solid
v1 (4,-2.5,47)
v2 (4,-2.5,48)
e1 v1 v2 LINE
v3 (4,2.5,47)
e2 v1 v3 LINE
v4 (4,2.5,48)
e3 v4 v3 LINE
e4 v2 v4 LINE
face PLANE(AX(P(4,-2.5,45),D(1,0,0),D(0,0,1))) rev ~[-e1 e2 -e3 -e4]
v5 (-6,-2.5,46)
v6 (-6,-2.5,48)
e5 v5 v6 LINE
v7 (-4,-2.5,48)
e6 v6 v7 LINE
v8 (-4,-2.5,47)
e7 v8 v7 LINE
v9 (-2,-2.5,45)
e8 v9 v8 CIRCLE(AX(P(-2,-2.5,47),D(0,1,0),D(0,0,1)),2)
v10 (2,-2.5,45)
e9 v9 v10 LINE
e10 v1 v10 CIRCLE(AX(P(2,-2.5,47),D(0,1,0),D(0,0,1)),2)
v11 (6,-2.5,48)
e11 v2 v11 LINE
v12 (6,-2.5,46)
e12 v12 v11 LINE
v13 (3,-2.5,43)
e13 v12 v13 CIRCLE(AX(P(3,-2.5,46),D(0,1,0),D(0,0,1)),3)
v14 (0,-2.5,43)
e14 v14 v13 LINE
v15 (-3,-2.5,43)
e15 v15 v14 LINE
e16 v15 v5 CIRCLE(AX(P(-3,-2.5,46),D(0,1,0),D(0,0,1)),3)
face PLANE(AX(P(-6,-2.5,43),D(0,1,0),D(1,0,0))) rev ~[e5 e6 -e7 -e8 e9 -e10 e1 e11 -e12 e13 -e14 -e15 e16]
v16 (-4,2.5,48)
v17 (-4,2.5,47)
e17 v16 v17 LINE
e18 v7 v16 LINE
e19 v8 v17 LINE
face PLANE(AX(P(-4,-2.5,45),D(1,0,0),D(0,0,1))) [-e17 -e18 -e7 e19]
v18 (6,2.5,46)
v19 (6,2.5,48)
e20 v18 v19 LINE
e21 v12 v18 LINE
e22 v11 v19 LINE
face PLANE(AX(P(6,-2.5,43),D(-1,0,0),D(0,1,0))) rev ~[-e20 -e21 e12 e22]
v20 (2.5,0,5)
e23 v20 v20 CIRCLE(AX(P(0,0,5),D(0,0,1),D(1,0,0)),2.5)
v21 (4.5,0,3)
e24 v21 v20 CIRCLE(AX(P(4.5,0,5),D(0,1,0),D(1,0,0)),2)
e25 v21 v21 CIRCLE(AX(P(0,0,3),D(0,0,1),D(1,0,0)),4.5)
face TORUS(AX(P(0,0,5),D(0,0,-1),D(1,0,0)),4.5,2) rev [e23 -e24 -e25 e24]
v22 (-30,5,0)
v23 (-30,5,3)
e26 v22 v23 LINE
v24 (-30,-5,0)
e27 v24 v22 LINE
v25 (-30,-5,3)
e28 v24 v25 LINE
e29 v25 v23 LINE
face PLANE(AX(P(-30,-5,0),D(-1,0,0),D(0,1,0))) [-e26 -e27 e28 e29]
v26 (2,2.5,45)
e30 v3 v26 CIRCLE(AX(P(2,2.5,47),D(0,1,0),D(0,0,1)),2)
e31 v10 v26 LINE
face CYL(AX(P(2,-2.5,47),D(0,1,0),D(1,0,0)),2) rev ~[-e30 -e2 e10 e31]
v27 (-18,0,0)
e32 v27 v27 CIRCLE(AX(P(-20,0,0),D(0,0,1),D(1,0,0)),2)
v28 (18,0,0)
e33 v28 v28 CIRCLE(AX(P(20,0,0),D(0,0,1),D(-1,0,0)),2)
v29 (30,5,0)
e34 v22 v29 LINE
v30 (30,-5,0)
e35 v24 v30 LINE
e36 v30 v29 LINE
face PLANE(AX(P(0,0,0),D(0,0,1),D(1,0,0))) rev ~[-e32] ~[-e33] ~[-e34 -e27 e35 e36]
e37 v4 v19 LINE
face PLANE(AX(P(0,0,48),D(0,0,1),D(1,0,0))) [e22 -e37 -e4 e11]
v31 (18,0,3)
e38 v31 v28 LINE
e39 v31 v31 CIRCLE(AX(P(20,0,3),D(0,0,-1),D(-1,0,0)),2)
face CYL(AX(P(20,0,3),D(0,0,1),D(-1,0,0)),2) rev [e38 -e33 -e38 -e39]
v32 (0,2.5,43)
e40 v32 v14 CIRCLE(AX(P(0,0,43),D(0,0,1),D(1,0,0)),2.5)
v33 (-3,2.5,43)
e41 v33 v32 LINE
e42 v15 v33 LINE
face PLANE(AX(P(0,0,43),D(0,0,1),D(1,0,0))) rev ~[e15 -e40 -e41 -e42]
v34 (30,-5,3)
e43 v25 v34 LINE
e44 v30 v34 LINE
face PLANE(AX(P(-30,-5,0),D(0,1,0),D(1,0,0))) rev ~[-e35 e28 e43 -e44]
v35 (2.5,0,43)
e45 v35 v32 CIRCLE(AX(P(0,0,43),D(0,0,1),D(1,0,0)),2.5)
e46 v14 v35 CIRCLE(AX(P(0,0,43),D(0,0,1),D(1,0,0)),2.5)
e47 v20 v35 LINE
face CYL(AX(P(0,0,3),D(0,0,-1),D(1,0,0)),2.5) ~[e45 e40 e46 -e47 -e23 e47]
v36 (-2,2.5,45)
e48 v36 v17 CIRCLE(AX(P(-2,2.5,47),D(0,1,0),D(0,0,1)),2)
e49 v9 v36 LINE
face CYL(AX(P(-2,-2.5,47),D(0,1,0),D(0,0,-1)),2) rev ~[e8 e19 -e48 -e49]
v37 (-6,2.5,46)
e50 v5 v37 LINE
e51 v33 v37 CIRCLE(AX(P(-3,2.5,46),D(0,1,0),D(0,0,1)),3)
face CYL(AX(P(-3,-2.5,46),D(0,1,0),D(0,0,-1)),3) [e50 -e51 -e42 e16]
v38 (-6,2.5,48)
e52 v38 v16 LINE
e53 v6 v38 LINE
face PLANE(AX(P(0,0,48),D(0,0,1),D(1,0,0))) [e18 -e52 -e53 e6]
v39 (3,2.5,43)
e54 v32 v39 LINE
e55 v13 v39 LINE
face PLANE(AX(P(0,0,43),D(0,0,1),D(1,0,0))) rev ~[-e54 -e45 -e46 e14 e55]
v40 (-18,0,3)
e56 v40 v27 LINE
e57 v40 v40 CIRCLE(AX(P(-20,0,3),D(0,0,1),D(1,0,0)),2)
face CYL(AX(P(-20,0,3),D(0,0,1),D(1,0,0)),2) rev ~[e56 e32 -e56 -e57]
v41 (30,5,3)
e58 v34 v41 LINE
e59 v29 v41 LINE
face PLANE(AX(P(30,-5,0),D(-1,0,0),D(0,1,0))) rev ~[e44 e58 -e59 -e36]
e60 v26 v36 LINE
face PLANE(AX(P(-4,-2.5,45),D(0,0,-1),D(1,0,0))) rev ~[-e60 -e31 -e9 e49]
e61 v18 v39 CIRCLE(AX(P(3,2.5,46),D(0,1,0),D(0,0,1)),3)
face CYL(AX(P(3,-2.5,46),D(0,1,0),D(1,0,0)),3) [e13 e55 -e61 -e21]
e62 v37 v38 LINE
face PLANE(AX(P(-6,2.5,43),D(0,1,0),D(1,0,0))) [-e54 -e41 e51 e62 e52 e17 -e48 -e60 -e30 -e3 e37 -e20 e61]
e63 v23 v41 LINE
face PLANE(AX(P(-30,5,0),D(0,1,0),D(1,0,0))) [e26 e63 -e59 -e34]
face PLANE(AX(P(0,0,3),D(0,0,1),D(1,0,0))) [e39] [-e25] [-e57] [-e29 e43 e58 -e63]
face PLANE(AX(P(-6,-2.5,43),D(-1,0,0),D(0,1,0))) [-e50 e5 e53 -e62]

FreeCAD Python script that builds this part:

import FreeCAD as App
import Part
import Sketcher
from FreeCAD import Vector
Q = App.Units.Quantity


def edges_at(feature, points):
    """Names of the edges that pass closest to the given points."""
    edges = feature.Shape.Edges
    near = lambda p: min(range(len(edges)), key=lambda i: edges[i].distToShape(Part.Vertex(*p))[0])
    return sorted({f"Edge{near(p) + 1}" for p in points})


def add_polygon(sketch, points):
    """Adds a closed chain of lines whose ends are joined by coincident constraints."""
    first, n = sketch.GeometryCount, len(points)
    for a, b in zip(points, points[1:] + points[:1]):
        sketch.addGeometry(Part.LineSegment(App.Vector(*a, 0), App.Vector(*b, 0)), False)
    for i in range(n):
        sketch.addConstraint(Sketcher.Constraint("Coincident", first + i, 2, first + (i + 1) % n, 1))

doc = App.newDocument("Part")
body = doc.addObject("PartDesign::Body", "Body")

sketch1 = body.newObject("Sketcher::SketchObject", "Sketch")
sketch1.AttachmentSupport = (doc.getObject("XY_Plane"), [""])
sketch1.MapMode = "FlatFace"
add_polygon(sketch1, [(-30, 5), (-30, -5), (30, -5), (30, 5)])
sketch1.addConstraint([
    Sketcher.Constraint("Vertical", 0),
    Sketcher.Constraint("Horizontal", 1),
    Sketcher.Constraint("Vertical", 2),
    Sketcher.Constraint("Horizontal", 3),
    Sketcher.Constraint("Symmetric", 0, 2, 2, 2, -1, 1),
    Sketcher.Constraint("DistanceX", 1, 1, 1, 2, Q("60 mm")),
    Sketcher.Constraint("DistanceY", 0, 2, 0, 1, Q("10 mm")),
])
pad1 = body.newObject("PartDesign::Pad", "Pad")
pad1.Profile = sketch1
pad1.Length = 3

sketch2 = body.newObject("Sketcher::SketchObject", "Sketch001")
sketch2.AttachmentSupport = (doc.getObject("XY_Plane"), [""])
sketch2.MapMode = "FlatFace"
sketch2.AttachmentOffset = App.Placement(Vector(0, 0, 3), App.Rotation())
sketch2.addGeometry(Part.Circle(Vector(-20, 0, 0), Vector(0, 0, 1), 2), False)
sketch2.addConstraint([
    Sketcher.Constraint("PointOnObject", 0, 3, -1),
    Sketcher.Constraint("Diameter", 0, Q("4 mm")),
    Sketcher.Constraint("DistanceX", 0, 3, -1, 1, Q("20 mm")),
])
pocket1 = body.newObject("PartDesign::Pocket", "Pocket")
pocket1.Profile = sketch2
pocket1.Type = "ThroughAll"
doc.recompute()

mirrored = body.newObject("PartDesign::Mirrored", "Mirrored")
mirrored.Originals = [pocket1]
mirrored.MirrorPlane = (doc.getObject("YZ_Plane"), [""])
body.Tip = mirrored

sketch3 = body.newObject("Sketcher::SketchObject", "Sketch002")
sketch3.AttachmentSupport = (doc.getObject("XY_Plane"), [""])
sketch3.MapMode = "FlatFace"
sketch3.AttachmentOffset = App.Placement(Vector(0, 0, 3), App.Rotation())
sketch3.addGeometry(Part.Circle(Vector(0, 0, 0), Vector(0, 0, 1), 2.5), False)
sketch3.addConstraint([
    Sketcher.Constraint("Coincident", 0, 3, -1, 1),
    Sketcher.Constraint("Diameter", 0, Q("5 mm")),
])
pad2 = body.newObject("PartDesign::Pad", "Pad001")
pad2.Profile = sketch3
pad2.Length = 40
doc.recompute()

fillet = body.newObject("PartDesign::Fillet", "Fillet")
fillet.Base = (pad2, edges_at(pad2, [(-2.5, 0, 3)]))
fillet.Radius = 2

sketch4 = body.newObject("Sketcher::SketchObject", "Sketch003")
sketch4.AttachmentSupport = (doc.getObject("XY_Plane"), [""])
sketch4.MapMode = "FlatFace"
sketch4.AttachmentOffset = App.Placement(Vector(0, 0, 43), App.Rotation())
add_polygon(sketch4, [(-6, 2.5), (-6, -2.5), (6, -2.5), (6, 2.5)])
sketch4.addConstraint([
    Sketcher.Constraint("Vertical", 0),
    Sketcher.Constraint("Horizontal", 1),
    Sketcher.Constraint("Vertical", 2),
    Sketcher.Constraint("Horizontal", 3),
    Sketcher.Constraint("Symmetric", 0, 2, 2, 2, -1, 1),
    Sketcher.Constraint("DistanceX", 1, 1, 1, 2, Q("12 mm")),
    Sketcher.Constraint("DistanceY", 0, 2, 0, 1, Q("5 mm")),
])
pad3 = body.newObject("PartDesign::Pad", "Pad002")
pad3.Profile = sketch4
pad3.Length = 5

sketch5 = body.newObject("Sketcher::SketchObject", "Sketch004")
sketch5.AttachmentSupport = (doc.getObject("XZ_Plane"), [""])
sketch5.MapMode = "FlatFace"
sketch5.AttachmentOffset = App.Placement(Vector(0, 0, 2.5), App.Rotation())
add_polygon(sketch5, [(-4, 48), (-4, 45), (4, 45), (4, 48)])
sketch5.addConstraint([
    Sketcher.Constraint("Vertical", 0),
    Sketcher.Constraint("Horizontal", 1),
    Sketcher.Constraint("Vertical", 2),
    Sketcher.Constraint("Horizontal", 3),
    Sketcher.Constraint("DistanceX", 1, 1, 1, 2, Q("8 mm")),
    Sketcher.Constraint("DistanceY", 0, 2, 0, 1, Q("3 mm")),
    Sketcher.Constraint("DistanceX", 0, 2, -1, 1, Q("4 mm")),
    Sketcher.Constraint("DistanceY", -1, 1, 0, 2, Q("45 mm")),
])
pocket2 = body.newObject("PartDesign::Pocket", "Pocket001")
pocket2.Profile = sketch5
pocket2.Type = "ThroughAll"
doc.recompute()

fillet2 = body.newObject("PartDesign::Fillet", "Fillet001")
fillet2.Base = (pocket2, edges_at(pocket2, [(4, 0, 45), (-4, 0, 45)]))
fillet2.Radius = 2
doc.recompute()

fillet3 = body.newObject("PartDesign::Fillet", "Fillet002")
fillet3.Base = (fillet2, edges_at(fillet2, [(-6, 0, 43), (6, 0, 43)]))
fillet3.Radius = 3

doc.recompute()
